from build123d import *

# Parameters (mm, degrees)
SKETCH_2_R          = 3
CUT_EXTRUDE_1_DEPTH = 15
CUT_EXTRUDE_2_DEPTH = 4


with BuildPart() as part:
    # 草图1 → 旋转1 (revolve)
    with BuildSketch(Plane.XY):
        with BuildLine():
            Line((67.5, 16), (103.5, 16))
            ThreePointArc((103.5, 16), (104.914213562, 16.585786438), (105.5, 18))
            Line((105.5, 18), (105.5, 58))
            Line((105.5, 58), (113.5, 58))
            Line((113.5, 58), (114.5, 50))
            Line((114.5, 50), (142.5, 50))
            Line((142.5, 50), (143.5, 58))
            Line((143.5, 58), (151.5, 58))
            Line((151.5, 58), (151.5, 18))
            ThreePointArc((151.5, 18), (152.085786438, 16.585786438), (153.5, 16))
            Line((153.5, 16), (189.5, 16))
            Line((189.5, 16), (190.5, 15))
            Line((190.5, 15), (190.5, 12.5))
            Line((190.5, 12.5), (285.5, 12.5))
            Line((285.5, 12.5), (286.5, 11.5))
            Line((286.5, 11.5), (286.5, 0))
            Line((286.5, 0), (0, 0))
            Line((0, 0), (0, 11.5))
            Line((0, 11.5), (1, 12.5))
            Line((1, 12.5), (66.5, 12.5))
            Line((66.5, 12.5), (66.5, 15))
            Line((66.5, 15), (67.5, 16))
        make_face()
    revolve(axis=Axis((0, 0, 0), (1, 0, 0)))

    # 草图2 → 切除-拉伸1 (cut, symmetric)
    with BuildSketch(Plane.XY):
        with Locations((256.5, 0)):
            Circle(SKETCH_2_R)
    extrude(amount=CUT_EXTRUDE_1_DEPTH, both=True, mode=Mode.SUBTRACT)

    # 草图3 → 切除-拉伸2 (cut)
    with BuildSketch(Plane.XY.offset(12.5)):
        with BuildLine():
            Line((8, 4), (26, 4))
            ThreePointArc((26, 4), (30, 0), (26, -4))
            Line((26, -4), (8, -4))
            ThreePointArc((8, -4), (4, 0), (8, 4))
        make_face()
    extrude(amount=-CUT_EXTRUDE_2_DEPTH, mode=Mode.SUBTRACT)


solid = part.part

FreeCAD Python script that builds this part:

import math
import FreeCAD as App
import Part
import Sketcher

V = App.Vector
Q = App.Units.Quantity

doc = App.newDocument("Part")
params = doc.addObject("Spreadsheet::Sheet", "Params")
for row, (alias, value) in enumerate([
    ("sketch1_radius", "2 mm"),
    ("sketch1_width", "36 mm"),
    ("sketch1_width2", "95 mm"),
    ("sketch1_width3", "8 mm"),
    ("sketch1_width4", "28 mm"),
    ("revolution_angle", "360 deg"),
    ("sketch2_diameter", "6 mm"),
    ("pocket1_length", "30 mm"),
    ("sketch3_radius", "4 mm"),
    ("sketch3_width", "18 mm"),
    ("pocket2_length", "4 mm"),
], start=1):
    params.set(f"A{row}", alias)
    params.set(f"B{row}", "=" + value)
    params.setAlias(f"B{row}", alias)

body = doc.addObject("PartDesign::Body", "Body")

# Sketch on XY plane
sketch1 = body.newObject("Sketcher::SketchObject", "Sketch")
sketch1.AttachmentSupport = (doc.getObject("XY_Plane"), [""])
sketch1.MapMode = "FlatFace"
sketch1.addGeometry(Part.LineSegment(V(103.5, 16, 0), V(67.5, 16, 0)), False)
sketch1.addGeometry(Part.LineSegment(V(67.5, 16, 0), V(66.5, 15, 0)), False)
sketch1.addGeometry(Part.LineSegment(V(66.5, 15, 0), V(66.5, 12.5, 0)), False)
sketch1.addGeometry(Part.LineSegment(V(66.5, 12.5, 0), V(1, 12.5, 0)), False)
sketch1.addGeometry(Part.LineSegment(V(1, 12.5, 0), V(0, 11.5, 0)), False)
sketch1.addGeometry(Part.LineSegment(V(0, 11.5, 0), V(0, 0, 0)), False)
sketch1.addGeometry(Part.LineSegment(V(0, 0, 0), V(286.5, 0, 0)), False)
sketch1.addGeometry(Part.LineSegment(V(286.5, 0, 0), V(286.5, 11.5, 0)), False)
sketch1.addGeometry(Part.LineSegment(V(286.5, 11.5, 0), V(285.5, 12.5, 0)), False)
sketch1.addGeometry(Part.LineSegment(V(285.5, 12.5, 0), V(190.5, 12.5, 0)), False)
sketch1.addGeometry(Part.LineSegment(V(190.5, 12.5, 0), V(190.5, 15, 0)), False)
sketch1.addGeometry(Part.LineSegment(V(190.5, 15, 0), V(189.5, 16, 0)), False)
sketch1.addGeometry(Part.LineSegment(V(189.5, 16, 0), V(153.5, 16, 0)), False)
sketch1.addGeometry(Part.ArcOfCircle(Part.Circle(V(153.5, 18, 0), V(0, 0, 1), 2), math.radians(-180), math.radians(-90)), False)
sketch1.addGeometry(Part.LineSegment(V(151.5, 18, 0), V(151.5, 58, 0)), False)
sketch1.addGeometry(Part.LineSegment(V(151.5, 58, 0), V(143.5, 58, 0)), False)
sketch1.addGeometry(Part.LineSegment(V(143.5, 58, 0), V(142.5, 50, 0)), False)
sketch1.addGeometry(Part.LineSegment(V(142.5, 50, 0), V(114.5, 50, 0)), False)
sketch1.addGeometry(Part.LineSegment(V(114.5, 50, 0), V(113.5, 58, 0)), False)
sketch1.addGeometry(Part.LineSegment(V(113.5, 58, 0), V(105.5, 58, 0)), False)
sketch1.addGeometry(Part.LineSegment(V(105.5, 58, 0), V(105.5, 18, 0)), False)
sketch1.addGeometry(Part.ArcOfCircle(Part.Circle(V(103.5, 18, 0), V(0, 0, 1), 2), math.radians(-90), math.radians(0)), False)
sketch1.addConstraint(Sketcher.Constraint("Coincident", 0, 2, 1, 1))
sketch1.addConstraint(Sketcher.Constraint("Coincident", 1, 2, 2, 1))
sketch1.addConstraint(Sketcher.Constraint("Coincident", 2, 2, 3, 1))
sketch1.addConstraint(Sketcher.Constraint("Coincident", 3, 2, 4, 1))
sketch1.addConstraint(Sketcher.Constraint("Coincident", 4, 2, 5, 1))
sketch1.addConstraint(Sketcher.Constraint("Coincident", 5, 2, 6, 1))
sketch1.addConstraint(Sketcher.Constraint("Coincident", 6, 2, 7, 1))
sketch1.addConstraint(Sketcher.Constraint("Coincident", 7, 2, 8, 1))
sketch1.addConstraint(Sketcher.Constraint("Coincident", 8, 2, 9, 1))
sketch1.addConstraint(Sketcher.Constraint("Coincident", 9, 2, 10, 1))
sketch1.addConstraint(Sketcher.Constraint("Coincident", 10, 2, 11, 1))
sketch1.addConstraint(Sketcher.Constraint("Coincident", 11, 2, 12, 1))
sketch1.addConstraint(Sketcher.Constraint("Tangent", 12, 2, 13, 2))
sketch1.addConstraint(Sketcher.Constraint("Tangent", 13, 1, 14, 1))
sketch1.addConstraint(Sketcher.Constraint("Coincident", 14, 2, 15, 1))
sketch1.addConstraint(Sketcher.Constraint("Coincident", 15, 2, 16, 1))
sketch1.addConstraint(Sketcher.Constraint("Coincident", 16, 2, 17, 1))
sketch1.addConstraint(Sketcher.Constraint("Coincident", 17, 2, 18, 1))
sketch1.addConstraint(Sketcher.Constraint("Coincident", 18, 2, 19, 1))
sketch1.addConstraint(Sketcher.Constraint("Coincident", 19, 2, 20, 1))
sketch1.addConstraint(Sketcher.Constraint("Tangent", 20, 2, 21, 2))
sketch1.addConstraint(Sketcher.Constraint("Tangent", 21, 1, 0, 1))
sketch1.addConstraint(Sketcher.Constraint("Horizontal", 0))
sketch1.addConstraint(Sketcher.Constraint("Vertical", 2))
sketch1.addConstraint(Sketcher.Constraint("Horizontal", 3))
sketch1.addConstraint(Sketcher.Constraint("Vertical", 5))
sketch1.addConstraint(Sketcher.Constraint("Horizontal", 6))
sketch1.addConstraint(Sketcher.Constraint("Vertical", 7))
sketch1.addConstraint(Sketcher.Constraint("Horizontal", 9))
sketch1.addConstraint(Sketcher.Constraint("Vertical", 10))
sketch1.addConstraint(Sketcher.Constraint("Horizontal", 12))
sketch1.addConstraint(Sketcher.Constraint("Vertical", 14))
sketch1.addConstraint(Sketcher.Constraint("Horizontal", 15))
sketch1.addConstraint(Sketcher.Constraint("Horizontal", 17))
sketch1.addConstraint(Sketcher.Constraint("Horizontal", 19))
sketch1.addConstraint(Sketcher.Constraint("Vertical", 20))
sketch1.addConstraint(Sketcher.Constraint("Coincident", 5, 2, -1, 1))
sketch1.addConstraint(Sketcher.Constraint("Equal", 13, 21))
sketch1.addConstraint(Sketcher.Constraint("Parallel", 1, 4))
sketch1.addConstraint(Sketcher.Constraint("Perpendicular", 4, 8))
sketch1.addConstraint(Sketcher.Constraint("Parallel", 8, 11))
sketch1.addConstraint(Sketcher.Constraint("Horizontal", 13, 3, 21, 3))
sketch1.addConstraint(Sketcher.Constraint("Horizontal", 4, 2, 7, 2))
sketch1.addConstraint(Sketcher.Constraint("Horizontal", 3, 2, 8, 2))
sketch1.addConstraint(Sketcher.Constraint("Horizontal", 1, 2, 10, 2))
sketch1.addConstraint(Sketcher.Constraint("Horizontal", 15, 2, 18, 2))
sketch1.addConstraint(Sketcher.Constraint("Equal", 0, 12))
sketch1.addConstraint(Sketcher.Constraint("Equal", 15, 19))
sketch1.addConstraint(Sketcher.Constraint("Equal", 1, 4))
sketch1.addConstraint(Sketcher.Constraint("Equal", 4, 8))
sketch1.addConstraint(Sketcher.Constraint("Equal", 16, 18))
sketch1.addConstraint(Sketcher.Constraint("Radius", 13, Q("2 mm")))
sketch1.addConstraint(Sketcher.Constraint("DistanceX", 0, 2, 0, 1, Q("36 mm")))
sketch1.addConstraint(Sketcher.Constraint("DistanceX", 9, 2, 9, 1, Q("95 mm")))
sketch1.addConstraint(Sketcher.Constraint("DistanceX", 15, 2, 15, 1, Q("8 mm")))
sketch1.addConstraint(Sketcher.Constraint("DistanceX", 17, 2, 17, 1, Q("28 mm")))
sketch1.addConstraint(Sketcher.Constraint("DistanceY", 14, 1, 14, 2, Q("40 mm")))
sketch1.addConstraint(Sketcher.Constraint("DistanceX", 3, 2, 3, 1, Q("65.5 mm")))
sketch1.addConstraint(Sketcher.Constraint("DistanceX", 6, 1, 6, 2, Q("286.5 mm")))
sketch1.addConstraint(Sketcher.Constraint("DistanceY", 2, 2, 2, 1, Q("2.5 mm")))
sketch1.addConstraint(Sketcher.Constraint("DistanceY", 5, 2, 5, 1, Q("11.5 mm")))
sketch1.addConstraint(Sketcher.Constraint("DistanceY", -1, 1, 13, 3, Q("18 mm")))
sketch1.addConstraint(Sketcher.Constraint("DistanceY", -1, 1, 16, 2, Q("50 mm")))
sketch1.setExpression("Constraints[51]", "Params.sketch1_radius")
sketch1.setExpression("Constraints[52]", "Params.sketch1_width")
sketch1.setExpression("Constraints[53]", "Params.sketch1_width2")
sketch1.setExpression("Constraints[54]", "Params.sketch1_width3")
sketch1.setExpression("Constraints[55]", "Params.sketch1_width4")
revolution = body.newObject("PartDesign::Revolution", "Revolution")
revolution.Profile = sketch1
revolution.ReferenceAxis = (sketch1, ["H_Axis"])
revolution.setExpression("Angle", "Params.revolution_angle")

# Sketch on XY plane
sketch2 = body.newObject("Sketcher::SketchObject", "Sketch001")
sketch2.AttachmentSupport = (doc.getObject("XY_Plane"), [""])
sketch2.MapMode = "FlatFace"
sketch2.addGeometry(Part.Circle(V(256.5, 0, 0), V(0, 0, 1), 3), False)
sketch2.addConstraint(Sketcher.Constraint("PointOnObject", 0, 3, -1))
sketch2.addConstraint(Sketcher.Constraint("Diameter", 0, Q("6 mm")))
sketch2.addConstraint(Sketcher.Constraint("DistanceX", -1, 1, 0, 3, Q("256.5 mm")))
sketch2.setExpression("Constraints[1]", "Params.sketch2_diameter")
pocket1 = body.newObject("PartDesign::Pocket", "Pocket")
pocket1.Profile = sketch2
pocket1.setExpression("Length", "Params.pocket1_length")
pocket1.Midplane = True

# Sketch on XY plane
sketch3 = body.newObject("Sketcher::SketchObject", "Sketch002")
sketch3.AttachmentSupport = (doc.getObject("XY_Plane"), [""])
sketch3.MapMode = "FlatFace"
sketch3.AttachmentOffset = App.Placement(V(0, 0, 12.5), App.Rotation())
sketch3.addGeometry(Part.LineSegment(V(26, 4, 0), V(8, 4, 0)), False)
sketch3.addGeometry(Part.ArcOfCircle(Part.Circle(V(8, 0, 0), V(0, 0, 1), 4), math.radians(90), math.radians(270)), False)
sketch3.addGeometry(Part.LineSegment(V(8, -4, 0), V(26, -4, 0)), False)
sketch3.addGeometry(Part.ArcOfCircle(Part.Circle(V(26, 0, 0), V(0, 0, 1), 4), math.radians(-90), math.radians(90)), False)
sketch3.addConstraint(Sketcher.Constraint("Tangent", 0, 2, 1, 1))
sketch3.addConstraint(Sketcher.Constraint("Tangent", 1, 2, 2, 1))
sketch3.addConstraint(Sketcher.Constraint("Tangent", 2, 2, 3, 1))
sketch3.addConstraint(Sketcher.Constraint("Tangent", 3, 2, 0, 1))
sketch3.addConstraint(Sketcher.Constraint("Horizontal", 0))
sketch3.addConstraint(Sketcher.Constraint("Horizontal", 2))
sketch3.addConstraint(Sketcher.Constraint("PointOnObject", 1, 3, -1))
sketch3.addConstraint(Sketcher.Constraint("Radius", 1, Q("4 mm")))
sketch3.addConstraint(Sketcher.Constraint("DistanceX", 0, 2, 0, 1, Q("18 mm")))
sketch3.addConstraint(Sketcher.Constraint("DistanceX", -1, 1, 1, 3, Q("8 mm")))
sketch3.setExpression("Constraints[7]", "Params.sketch3_radius")
sketch3.setExpression("Constraints[8]", "Params.sketch3_width")
pocket2 = body.newObject("PartDesign::Pocket", "Pocket001")
pocket2.Profile = sketch3
pocket2.setExpression("Length", "Params.pocket2_length")

doc.recompute()
